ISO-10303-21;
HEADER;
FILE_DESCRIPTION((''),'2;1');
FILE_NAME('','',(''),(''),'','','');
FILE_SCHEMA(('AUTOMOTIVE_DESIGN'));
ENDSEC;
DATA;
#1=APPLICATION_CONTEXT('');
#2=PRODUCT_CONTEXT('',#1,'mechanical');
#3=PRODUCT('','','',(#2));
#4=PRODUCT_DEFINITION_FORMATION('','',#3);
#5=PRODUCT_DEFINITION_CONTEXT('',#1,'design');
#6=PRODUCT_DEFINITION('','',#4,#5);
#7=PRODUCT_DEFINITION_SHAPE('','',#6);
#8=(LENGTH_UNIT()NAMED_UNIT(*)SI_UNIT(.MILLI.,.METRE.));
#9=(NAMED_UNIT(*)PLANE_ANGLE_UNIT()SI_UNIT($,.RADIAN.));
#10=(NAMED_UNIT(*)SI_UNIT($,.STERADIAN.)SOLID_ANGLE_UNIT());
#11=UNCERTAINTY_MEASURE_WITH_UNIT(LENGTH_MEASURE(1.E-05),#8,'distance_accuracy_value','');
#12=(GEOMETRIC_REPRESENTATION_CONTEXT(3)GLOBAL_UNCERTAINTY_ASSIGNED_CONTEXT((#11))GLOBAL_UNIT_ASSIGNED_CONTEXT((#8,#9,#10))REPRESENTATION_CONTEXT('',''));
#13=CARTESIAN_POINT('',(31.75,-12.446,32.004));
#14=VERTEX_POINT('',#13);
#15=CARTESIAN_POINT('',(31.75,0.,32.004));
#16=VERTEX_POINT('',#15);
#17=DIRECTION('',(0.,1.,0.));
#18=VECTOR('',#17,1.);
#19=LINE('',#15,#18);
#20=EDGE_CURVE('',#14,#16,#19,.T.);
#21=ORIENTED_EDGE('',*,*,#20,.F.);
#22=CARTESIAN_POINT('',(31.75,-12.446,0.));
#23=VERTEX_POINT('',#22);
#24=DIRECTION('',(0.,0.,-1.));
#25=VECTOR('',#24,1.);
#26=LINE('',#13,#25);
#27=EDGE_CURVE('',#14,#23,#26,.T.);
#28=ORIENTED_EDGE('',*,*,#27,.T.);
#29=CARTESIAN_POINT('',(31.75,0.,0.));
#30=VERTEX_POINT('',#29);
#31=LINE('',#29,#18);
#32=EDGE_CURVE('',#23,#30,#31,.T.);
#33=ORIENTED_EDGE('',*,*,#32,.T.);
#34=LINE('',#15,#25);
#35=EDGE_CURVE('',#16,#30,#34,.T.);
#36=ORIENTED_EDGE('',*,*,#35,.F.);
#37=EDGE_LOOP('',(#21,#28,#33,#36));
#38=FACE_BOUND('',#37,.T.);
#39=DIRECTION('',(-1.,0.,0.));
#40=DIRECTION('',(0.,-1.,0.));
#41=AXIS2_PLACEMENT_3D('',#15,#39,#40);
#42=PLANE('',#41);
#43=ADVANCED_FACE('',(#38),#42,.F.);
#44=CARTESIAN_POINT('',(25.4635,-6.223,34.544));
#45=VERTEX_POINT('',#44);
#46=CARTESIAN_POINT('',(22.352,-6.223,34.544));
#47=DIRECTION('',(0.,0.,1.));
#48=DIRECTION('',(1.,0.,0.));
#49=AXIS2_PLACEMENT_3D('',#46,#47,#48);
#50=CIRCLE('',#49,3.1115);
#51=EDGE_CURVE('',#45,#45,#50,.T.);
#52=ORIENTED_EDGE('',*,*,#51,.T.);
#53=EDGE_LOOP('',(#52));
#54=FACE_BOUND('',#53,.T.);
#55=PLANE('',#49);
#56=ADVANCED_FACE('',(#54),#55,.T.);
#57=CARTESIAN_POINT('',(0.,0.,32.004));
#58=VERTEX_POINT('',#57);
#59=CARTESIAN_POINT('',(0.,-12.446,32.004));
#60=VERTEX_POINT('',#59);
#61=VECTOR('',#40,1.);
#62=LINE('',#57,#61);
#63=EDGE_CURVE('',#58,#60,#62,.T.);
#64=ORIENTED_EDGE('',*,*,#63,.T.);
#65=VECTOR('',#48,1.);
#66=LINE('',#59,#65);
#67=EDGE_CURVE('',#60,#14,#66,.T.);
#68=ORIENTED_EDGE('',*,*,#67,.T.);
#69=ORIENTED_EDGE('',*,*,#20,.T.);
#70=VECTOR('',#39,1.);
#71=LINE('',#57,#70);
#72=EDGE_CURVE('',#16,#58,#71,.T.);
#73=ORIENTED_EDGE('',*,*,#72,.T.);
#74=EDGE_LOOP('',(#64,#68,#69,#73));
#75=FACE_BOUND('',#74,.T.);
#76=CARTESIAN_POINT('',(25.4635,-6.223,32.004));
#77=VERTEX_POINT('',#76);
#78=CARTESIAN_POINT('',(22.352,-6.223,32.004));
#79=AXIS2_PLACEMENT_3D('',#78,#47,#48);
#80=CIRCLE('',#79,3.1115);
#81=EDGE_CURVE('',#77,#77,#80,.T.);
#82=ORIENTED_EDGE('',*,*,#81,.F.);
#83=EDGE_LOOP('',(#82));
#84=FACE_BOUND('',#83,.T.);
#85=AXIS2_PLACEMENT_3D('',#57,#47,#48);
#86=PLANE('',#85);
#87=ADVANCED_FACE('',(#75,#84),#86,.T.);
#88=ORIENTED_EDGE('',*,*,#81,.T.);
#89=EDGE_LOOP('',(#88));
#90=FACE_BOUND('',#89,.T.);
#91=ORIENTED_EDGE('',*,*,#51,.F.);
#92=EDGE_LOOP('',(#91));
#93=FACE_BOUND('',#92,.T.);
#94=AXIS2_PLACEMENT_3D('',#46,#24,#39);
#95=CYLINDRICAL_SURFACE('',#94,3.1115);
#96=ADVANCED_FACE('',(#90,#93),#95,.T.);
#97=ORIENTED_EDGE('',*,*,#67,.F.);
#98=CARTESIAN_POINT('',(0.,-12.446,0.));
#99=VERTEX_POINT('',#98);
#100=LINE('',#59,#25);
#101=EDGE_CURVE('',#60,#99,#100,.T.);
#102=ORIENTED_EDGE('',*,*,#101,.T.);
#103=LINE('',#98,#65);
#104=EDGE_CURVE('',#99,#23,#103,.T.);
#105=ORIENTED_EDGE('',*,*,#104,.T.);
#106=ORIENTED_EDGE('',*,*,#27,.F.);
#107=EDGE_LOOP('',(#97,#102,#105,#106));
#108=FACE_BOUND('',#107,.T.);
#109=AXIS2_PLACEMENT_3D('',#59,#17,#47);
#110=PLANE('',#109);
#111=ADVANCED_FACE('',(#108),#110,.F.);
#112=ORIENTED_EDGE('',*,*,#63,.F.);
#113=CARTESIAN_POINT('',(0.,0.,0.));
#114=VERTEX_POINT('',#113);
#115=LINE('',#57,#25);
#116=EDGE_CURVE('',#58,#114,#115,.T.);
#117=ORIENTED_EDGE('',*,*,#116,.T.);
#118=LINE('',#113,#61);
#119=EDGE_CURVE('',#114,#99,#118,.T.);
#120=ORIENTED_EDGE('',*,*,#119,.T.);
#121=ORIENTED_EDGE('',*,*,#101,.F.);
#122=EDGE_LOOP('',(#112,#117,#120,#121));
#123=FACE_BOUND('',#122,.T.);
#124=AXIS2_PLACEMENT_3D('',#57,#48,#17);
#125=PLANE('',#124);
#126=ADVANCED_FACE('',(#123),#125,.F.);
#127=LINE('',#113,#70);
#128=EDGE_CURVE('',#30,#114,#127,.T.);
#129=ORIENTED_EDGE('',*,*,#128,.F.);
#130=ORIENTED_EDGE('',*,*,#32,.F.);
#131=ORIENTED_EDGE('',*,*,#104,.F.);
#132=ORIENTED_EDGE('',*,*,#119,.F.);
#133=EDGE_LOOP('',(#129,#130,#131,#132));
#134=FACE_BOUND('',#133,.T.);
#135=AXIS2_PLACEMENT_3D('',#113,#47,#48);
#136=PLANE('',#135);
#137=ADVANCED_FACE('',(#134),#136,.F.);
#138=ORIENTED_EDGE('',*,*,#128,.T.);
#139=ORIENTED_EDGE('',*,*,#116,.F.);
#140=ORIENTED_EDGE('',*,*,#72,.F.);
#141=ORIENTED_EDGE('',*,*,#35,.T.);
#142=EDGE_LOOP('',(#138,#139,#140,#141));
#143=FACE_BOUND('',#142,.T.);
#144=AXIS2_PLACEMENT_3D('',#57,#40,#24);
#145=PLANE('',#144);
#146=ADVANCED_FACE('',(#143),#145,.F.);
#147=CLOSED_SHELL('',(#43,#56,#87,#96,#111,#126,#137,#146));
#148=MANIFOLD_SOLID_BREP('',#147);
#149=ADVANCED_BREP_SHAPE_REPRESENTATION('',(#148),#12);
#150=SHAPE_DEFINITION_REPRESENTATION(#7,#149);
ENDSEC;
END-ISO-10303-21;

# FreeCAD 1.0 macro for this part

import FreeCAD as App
import Part
import Sketcher

V = App.Vector
Q = App.Units.Quantity

doc = App.newDocument("Part")
body = doc.addObject("PartDesign::Body", "Body")

# Sketch on XY plane
sketch1 = doc.addObject("Sketcher::SketchObject", "Sketch")
body.addObject(sketch1)
sketch1.AttachmentSupport = (doc.XY_Plane, [""])
sketch1.MapMode = "FlatFace"
sketch1.addGeometry(Part.LineSegment(V(0, 0, 0), V(0, -12.446, 0)), False)
sketch1.addGeometry(Part.LineSegment(V(0, -12.446, 0), V(31.75, -12.446, 0)), False)
sketch1.addGeometry(Part.LineSegment(V(31.75, -12.446, 0), V(31.75, 0, 0)), False)
sketch1.addGeometry(Part.LineSegment(V(31.75, 0, 0), V(0, 0, 0)), False)
sketch1.addConstraint(Sketcher.Constraint("Coincident", 0, 2, 1, 1))
sketch1.addConstraint(Sketcher.Constraint("Coincident", 1, 2, 2, 1))
sketch1.addConstraint(Sketcher.Constraint("Coincident", 2, 2, 3, 1))
sketch1.addConstraint(Sketcher.Constraint("Coincident", 3, 2, 0, 1))
sketch1.addConstraint(Sketcher.Constraint("Vertical", 0))
sketch1.addConstraint(Sketcher.Constraint("Horizontal", 1))
sketch1.addConstraint(Sketcher.Constraint("Vertical", 2))
sketch1.addConstraint(Sketcher.Constraint("Horizontal", 3))
sketch1.addConstraint(Sketcher.Constraint("Coincident", 3, 2, -1, 1))
sketch1.addConstraint(Sketcher.Constraint("DistanceX", 1, 1, 1, 2, Q("1.25 in")))
sketch1.addConstraint(Sketcher.Constraint("DistanceY", 0, 2, 0, 1, Q("0.49 in")))
pad1 = doc.addObject("PartDesign::Pad", "Pad")
body.addObject(pad1)
pad1.Profile = sketch1
pad1.Length = Q("1.26 in")

# Sketch on XY plane
sketch2 = doc.addObject("Sketcher::SketchObject", "Sketch001")
body.addObject(sketch2)
sketch2.AttachmentSupport = (doc.XY_Plane, [""])
sketch2.MapMode = "FlatFace"
sketch2.AttachmentOffset = App.Placement(V(0, 0, 1.26 * 25.4), App.Rotation())
sketch2.addGeometry(Part.Circle(V(22.352, -6.223, 0), V(0, 0, 1), 3.1115), False)
sketch2.addConstraint(Sketcher.Constraint("Diameter", 0, Q("0.245 in")))
sketch2.addConstraint(Sketcher.Constraint("DistanceX", -1, 1, 0, 3, Q("0.88 in")))
sketch2.addConstraint(Sketcher.Constraint("DistanceY", 0, 3, -1, 1, Q("0.245 in")))
pad2 = doc.addObject("PartDesign::Pad", "Pad001")
body.addObject(pad2)
pad2.Profile = sketch2
pad2.Length = Q("0.1 in")

doc.recompute()
